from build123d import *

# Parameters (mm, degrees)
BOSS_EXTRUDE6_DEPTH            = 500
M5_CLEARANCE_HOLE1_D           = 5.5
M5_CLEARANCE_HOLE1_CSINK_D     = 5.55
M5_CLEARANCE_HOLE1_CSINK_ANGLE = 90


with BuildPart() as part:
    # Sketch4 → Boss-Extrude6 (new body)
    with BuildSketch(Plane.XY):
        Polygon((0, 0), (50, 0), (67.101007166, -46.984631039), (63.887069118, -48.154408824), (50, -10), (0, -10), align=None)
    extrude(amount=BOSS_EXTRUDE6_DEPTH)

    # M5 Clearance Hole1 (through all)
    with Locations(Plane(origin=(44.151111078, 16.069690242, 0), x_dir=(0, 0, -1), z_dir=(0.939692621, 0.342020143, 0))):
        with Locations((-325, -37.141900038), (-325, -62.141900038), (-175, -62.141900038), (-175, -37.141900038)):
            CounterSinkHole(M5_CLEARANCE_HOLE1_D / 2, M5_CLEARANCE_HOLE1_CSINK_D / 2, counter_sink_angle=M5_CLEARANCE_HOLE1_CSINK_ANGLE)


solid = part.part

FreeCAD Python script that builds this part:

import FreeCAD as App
import Part
import Sketcher
Q = App.Units.Quantity


def add_polygon(sketch, points):
    """Adds a closed chain of lines whose ends are joined by coincident constraints."""
    first, n = sketch.GeometryCount, len(points)
    for a, b in zip(points, points[1:] + points[:1]):
        sketch.addGeometry(Part.LineSegment(App.Vector(*a, 0), App.Vector(*b, 0)), False)
    for i in range(n):
        sketch.addConstraint(Sketcher.Constraint("Coincident", first + i, 2, first + (i + 1) % n, 1))

doc = App.newDocument("Part")
body = doc.addObject("PartDesign::Body", "Body")

# Sketch on XY plane
sketch1 = body.newObject("Sketcher::SketchObject", "Sketch")
sketch1.AttachmentSupport = (doc.getObject("XY_Plane"), [""])
sketch1.MapMode = "FlatFace"
add_polygon(sketch1, [(50, 0), (0, 0), (0, -10), (50, -10), (63.9, -48.2), (67.1, -47)])  # lines 0-5
sketch1.addConstraint([
    Sketcher.Constraint("Horizontal", 0),
    Sketcher.Constraint("Vertical", 1),
    Sketcher.Constraint("Horizontal", 2),
    Sketcher.Constraint("Coincident", 0, 2, -1, 1),
    Sketcher.Constraint("Perpendicular", 3, 4),
    Sketcher.Constraint("Perpendicular", 4, 5),
    Sketcher.Constraint("Vertical", 2, 2, 5, 2),
    Sketcher.Constraint("DistanceX", 0, 2, 0, 1, 50.0),
    Sketcher.Constraint("DistanceY", 1, 2, 1, 1, 10.0),
    Sketcher.Constraint("Angle", 3, Q("-70 deg")),
    Sketcher.Constraint("Distance", 5, 50.0),
])
pad1 = body.newObject("PartDesign::Pad", "Pad")
pad1.Profile = sketch1
pad1.Length = 500

# Sketch on an angled plane
sketch2 = body.newObject("Sketcher::SketchObject", "Sketch001")
sketch2.Placement = App.Placement(App.Vector(44.151111, 16.06969, 0), App.Rotation(App.Vector(0, 0, -1), App.Vector(-0.342020143, 0.939692621, 0), App.Vector(0.939692621, 0.342020143, 0), "ZXY"))
sketch2.addGeometry([
    Part.Circle(App.Vector(-325, -37.1, 0), App.Vector(0, 0, 1), 2.8),
    Part.Circle(App.Vector(-325, -62.1, 0), App.Vector(0, 0, 1), 2.8),
    Part.Circle(App.Vector(-175, -62.1, 0), App.Vector(0, 0, 1), 2.8),
    Part.Circle(App.Vector(-175, -37.1, 0), App.Vector(0, 0, 1), 2.8),
], False)
sketch2.addConstraint([
    Sketcher.Constraint("Equal", 0, 1),
    Sketcher.Constraint("Equal", 1, 2),
    Sketcher.Constraint("Equal", 2, 3),
    Sketcher.Constraint("Horizontal", 1, 3, 2, 3),
    Sketcher.Constraint("Horizontal", 0, 3, 3, 3),
    Sketcher.Constraint("Vertical", 0, 3, 1, 3),
    Sketcher.Constraint("Vertical", 2, 3, 3, 3),
    Sketcher.Constraint("Diameter", 0, 5.5),
    Sketcher.Constraint("DistanceX", 0, 3, -1, 1, 325.0),
    Sketcher.Constraint("DistanceX", 2, 3, -1, 1, 175.0),
    Sketcher.Constraint("DistanceY", 1, 3, 0, 3, 25.0),
    Sketcher.Constraint("DistanceY", 0, 3, -1, 1, 37.1419),
])
doc.recompute()
hole = body.newObject("PartDesign::Hole", "Hole")
hole.Profile = sketch2
hole.ThreadType = "None"
hole.Diameter = 5.5
hole.DepthType = "ThroughAll"
hole.HoleCutType = "Countersink"
hole.HoleCutDiameter = 5.55
hole.HoleCutCountersinkAngle = 90

doc.recompute()
